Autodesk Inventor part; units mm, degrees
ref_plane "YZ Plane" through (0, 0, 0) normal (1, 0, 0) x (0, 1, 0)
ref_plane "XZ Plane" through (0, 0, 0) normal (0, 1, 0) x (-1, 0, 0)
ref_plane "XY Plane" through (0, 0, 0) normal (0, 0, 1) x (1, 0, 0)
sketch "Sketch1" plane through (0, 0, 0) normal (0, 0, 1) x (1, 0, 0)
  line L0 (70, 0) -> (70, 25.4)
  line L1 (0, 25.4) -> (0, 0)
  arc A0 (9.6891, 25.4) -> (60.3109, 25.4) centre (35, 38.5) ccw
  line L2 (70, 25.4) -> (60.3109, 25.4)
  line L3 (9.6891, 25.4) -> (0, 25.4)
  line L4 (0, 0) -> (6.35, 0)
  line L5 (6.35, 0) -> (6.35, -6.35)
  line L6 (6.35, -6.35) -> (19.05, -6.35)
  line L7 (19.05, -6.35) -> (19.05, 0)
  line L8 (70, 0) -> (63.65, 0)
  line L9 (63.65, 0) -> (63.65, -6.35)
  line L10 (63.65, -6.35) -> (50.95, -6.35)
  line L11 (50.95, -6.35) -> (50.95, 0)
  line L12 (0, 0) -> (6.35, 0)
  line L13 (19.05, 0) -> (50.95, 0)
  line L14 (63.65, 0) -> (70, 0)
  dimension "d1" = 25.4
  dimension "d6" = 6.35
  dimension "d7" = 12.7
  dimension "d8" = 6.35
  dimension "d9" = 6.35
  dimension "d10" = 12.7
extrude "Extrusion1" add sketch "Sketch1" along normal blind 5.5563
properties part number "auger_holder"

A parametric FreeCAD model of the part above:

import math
import FreeCAD as App
import Part
import Sketcher
from FreeCAD import Vector
Q = App.Units.Quantity

doc = App.newDocument("Part")
body = doc.addObject("PartDesign::Body", "Body")

# Sketch on XY plane
sketch1 = doc.addObject("Sketcher::SketchObject", "Sketch")
body.addObject(sketch1)
sketch1.AttachmentSupport = (doc.XY_Plane, [""])
sketch1.MapMode = "FlatFace"
sketch1.addGeometry([
    Part.LineSegment(Vector(64, 0, 0), Vector(70, 0, 0)),  # 0
    Part.LineSegment(Vector(70, 0, 0), Vector(70, 25, 0)),  # 1
    Part.LineSegment(Vector(70, 25, 0), Vector(60, 25, 0)),  # 2
    Part.ArcOfCircle(Part.Circle(Vector(35, 38, 0), Vector(0, 0, 1), 29), math.radians(-153), math.radians(-27)),  # 3
    Part.LineSegment(Vector(10, 25, 0), Vector(0, 25, 0)),  # 4
    Part.LineSegment(Vector(0, 25, 0), Vector(0, 0, 0)),  # 5
    Part.LineSegment(Vector(0, 0, 0), Vector(6, 0, 0)),  # 6
    Part.LineSegment(Vector(6, 0, 0), Vector(6, -6, 0)),  # 7
    Part.LineSegment(Vector(6, -6, 0), Vector(19, -6, 0)),  # 8
    Part.LineSegment(Vector(19, -6, 0), Vector(19, 0, 0)),  # 9
    Part.LineSegment(Vector(19, 0, 0), Vector(51, 0, 0)),  # 10
    Part.LineSegment(Vector(51, 0, 0), Vector(51, -6, 0)),  # 11
    Part.LineSegment(Vector(51, -6, 0), Vector(64, -6, 0)),  # 12
    Part.LineSegment(Vector(64, -6, 0), Vector(64, 0, 0)),  # 13
], False)
sketch1.addConstraint([
    Sketcher.Constraint("Coincident", 0, 2, 1, 1),
    Sketcher.Constraint("Coincident", 1, 2, 2, 1),
    Sketcher.Constraint("Coincident", 2, 2, 3, 2),
    Sketcher.Constraint("Coincident", 3, 1, 4, 1),
    Sketcher.Constraint("Coincident", 4, 2, 5, 1),
    Sketcher.Constraint("Coincident", 5, 2, 6, 1),
    Sketcher.Constraint("Coincident", 6, 2, 7, 1),
    Sketcher.Constraint("Coincident", 7, 2, 8, 1),
    Sketcher.Constraint("Coincident", 8, 2, 9, 1),
    Sketcher.Constraint("Coincident", 9, 2, 10, 1),
    Sketcher.Constraint("Coincident", 10, 2, 11, 1),
    Sketcher.Constraint("Coincident", 11, 2, 12, 1),
    Sketcher.Constraint("Coincident", 12, 2, 13, 1),
    Sketcher.Constraint("Coincident", 13, 2, 0, 1),
    Sketcher.Constraint("Horizontal", 0),
    Sketcher.Constraint("Vertical", 1),
    Sketcher.Constraint("Horizontal", 2),
    Sketcher.Constraint("Horizontal", 4),
    Sketcher.Constraint("Vertical", 5),
    Sketcher.Constraint("Horizontal", 6),
    Sketcher.Constraint("Vertical", 7),
    Sketcher.Constraint("Horizontal", 8),
    Sketcher.Constraint("Vertical", 9),
    Sketcher.Constraint("Horizontal", 10),
    Sketcher.Constraint("Vertical", 11),
    Sketcher.Constraint("Horizontal", 12),
    Sketcher.Constraint("Vertical", 13),
    Sketcher.Constraint("Coincident", 5, 2, -1, 1),
    Sketcher.Constraint("PointOnObject", 0, 2, -1),
    Sketcher.Constraint("PointOnObject", 9, 2, -1),
    Sketcher.Constraint("Horizontal", 2, 2, 3, 1),
    Sketcher.Constraint("Horizontal", 8, 2, 11, 2),
    Sketcher.Constraint("Equal", 2, 4),
    Sketcher.Constraint("Equal", 0, 6),
    Sketcher.Constraint("Equal", 8, 12),
    Sketcher.Constraint("Equal", 6, 7),
    Sketcher.Constraint("DistanceY", 1, 1, 1, 2, Q("1 in")),
    Sketcher.Constraint("DistanceX", 8, 1, 8, 2, Q("0.5 in")),
    Sketcher.Constraint("DistanceX", 0, 1, 0, 2, Q("0.25 in")),
    Sketcher.Constraint("Radius", 3, 28.5),
    Sketcher.Constraint("DistanceX", 10, 1, 10, 2, Q("1.2559 in")),
    Sketcher.Constraint("DistanceX", 2, 2, 2, 1, 9.689),
])
pad1 = doc.addObject("PartDesign::Pad", "Pad")
body.addObject(pad1)
pad1.Profile = sketch1
pad1.Length = Q("0.218752 in")

doc.recompute()
